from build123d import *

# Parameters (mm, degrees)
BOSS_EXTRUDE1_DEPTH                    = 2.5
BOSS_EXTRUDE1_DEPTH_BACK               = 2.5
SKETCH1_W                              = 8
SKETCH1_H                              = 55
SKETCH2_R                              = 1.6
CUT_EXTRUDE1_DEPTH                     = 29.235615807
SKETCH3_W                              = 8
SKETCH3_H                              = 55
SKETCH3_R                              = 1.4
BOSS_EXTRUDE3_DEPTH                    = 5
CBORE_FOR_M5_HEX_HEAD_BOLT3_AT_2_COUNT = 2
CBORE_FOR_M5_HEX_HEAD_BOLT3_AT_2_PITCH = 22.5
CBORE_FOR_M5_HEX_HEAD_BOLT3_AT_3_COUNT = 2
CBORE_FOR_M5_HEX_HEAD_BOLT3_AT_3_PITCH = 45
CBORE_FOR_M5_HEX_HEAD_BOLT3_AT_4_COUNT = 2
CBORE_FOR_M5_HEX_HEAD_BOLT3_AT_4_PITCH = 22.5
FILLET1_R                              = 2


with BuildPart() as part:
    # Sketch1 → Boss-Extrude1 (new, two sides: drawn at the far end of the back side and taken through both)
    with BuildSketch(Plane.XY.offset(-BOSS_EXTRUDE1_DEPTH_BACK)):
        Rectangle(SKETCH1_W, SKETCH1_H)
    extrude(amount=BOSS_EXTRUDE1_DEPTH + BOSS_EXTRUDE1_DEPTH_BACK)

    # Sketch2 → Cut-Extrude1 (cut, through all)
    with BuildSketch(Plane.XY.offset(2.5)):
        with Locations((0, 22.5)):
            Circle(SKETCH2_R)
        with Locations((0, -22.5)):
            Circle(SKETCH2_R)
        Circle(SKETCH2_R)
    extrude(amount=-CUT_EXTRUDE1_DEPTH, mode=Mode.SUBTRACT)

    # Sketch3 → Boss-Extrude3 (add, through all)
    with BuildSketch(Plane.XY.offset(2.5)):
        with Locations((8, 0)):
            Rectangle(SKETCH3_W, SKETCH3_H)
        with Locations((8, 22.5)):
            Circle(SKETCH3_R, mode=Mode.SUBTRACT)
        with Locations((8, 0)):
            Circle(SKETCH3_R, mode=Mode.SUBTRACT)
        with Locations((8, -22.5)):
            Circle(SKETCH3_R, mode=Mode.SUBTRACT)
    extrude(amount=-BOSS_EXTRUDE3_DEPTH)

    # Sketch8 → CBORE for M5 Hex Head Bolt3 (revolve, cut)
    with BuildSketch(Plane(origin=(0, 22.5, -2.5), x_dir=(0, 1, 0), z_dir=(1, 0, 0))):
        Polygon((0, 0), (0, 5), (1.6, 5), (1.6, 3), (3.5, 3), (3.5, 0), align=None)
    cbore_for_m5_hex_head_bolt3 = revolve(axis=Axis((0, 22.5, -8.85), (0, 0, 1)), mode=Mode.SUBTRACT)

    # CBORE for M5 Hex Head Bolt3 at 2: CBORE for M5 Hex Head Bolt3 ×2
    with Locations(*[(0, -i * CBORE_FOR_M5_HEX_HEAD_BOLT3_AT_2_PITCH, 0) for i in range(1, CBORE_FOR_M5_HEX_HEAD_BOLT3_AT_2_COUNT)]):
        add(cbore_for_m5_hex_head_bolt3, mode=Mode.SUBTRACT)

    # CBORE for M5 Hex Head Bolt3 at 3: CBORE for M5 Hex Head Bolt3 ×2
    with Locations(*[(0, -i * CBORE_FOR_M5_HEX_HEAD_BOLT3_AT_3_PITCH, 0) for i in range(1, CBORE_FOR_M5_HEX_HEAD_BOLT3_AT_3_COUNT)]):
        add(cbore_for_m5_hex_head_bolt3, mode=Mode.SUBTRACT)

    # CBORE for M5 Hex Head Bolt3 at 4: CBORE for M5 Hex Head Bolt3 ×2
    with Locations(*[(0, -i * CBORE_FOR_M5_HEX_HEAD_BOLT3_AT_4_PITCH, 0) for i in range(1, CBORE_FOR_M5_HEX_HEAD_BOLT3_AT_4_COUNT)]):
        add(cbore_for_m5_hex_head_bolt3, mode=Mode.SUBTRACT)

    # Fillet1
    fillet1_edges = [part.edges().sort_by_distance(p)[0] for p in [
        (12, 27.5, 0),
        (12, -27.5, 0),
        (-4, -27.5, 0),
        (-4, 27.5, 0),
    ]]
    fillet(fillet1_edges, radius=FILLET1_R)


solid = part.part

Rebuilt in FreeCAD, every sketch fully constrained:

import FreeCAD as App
import Part
import Sketcher
from FreeCAD import Vector


def edges_at(feature, points):
    """Names of the edges that pass closest to the given points."""
    edges = feature.Shape.Edges
    near = lambda p: min(range(len(edges)), key=lambda i: edges[i].distToShape(Part.Vertex(*p))[0])
    return sorted({f"Edge{near(p) + 1}" for p in points})

doc = App.newDocument("Part")
params = doc.addObject("Spreadsheet::Sheet", "Params")
for row, (alias, value) in enumerate([
    ("sketch1_width", "8 mm"),
    ("sketch1_height", "55 mm"),
    ("pad1_length", "2.5 mm"),
    ("pad1_length2", "2.5 mm"),
    ("sketch2_diameter", "3.2 mm"),
    ("sketch3_diameter", "2.8 mm"),
    ("sketch3_width", "8 mm"),
    ("sketch3_height", "55 mm"),
    ("pad2_length", "5 mm"),
    ("sketch4_height", "5 mm"),
    ("sketch4_height2", "3 mm"),
    ("sketch4_width", "3.5 mm"),
    ("sketch4_width2", "1.9 mm"),
    ("groove_angle", "360 deg"),
    ("linearpattern_pitch", "22.5 mm"),
    ("linearpattern2_pitch", "45 mm"),
    ("linearpattern3_pitch", "22.5 mm"),
    ("fillet_radius", "2 mm"),
], start=1):
    params.set(f"A{row}", alias)
    params.set(f"B{row}", "=" + value)
    params.setAlias(f"B{row}", alias)

body = doc.addObject("PartDesign::Body", "Body")

sketch1 = body.newObject("Sketcher::SketchObject", "Sketch")
sketch1.AttachmentSupport = (doc.getObject("XY_Plane"), [""])
sketch1.MapMode = "FlatFace"
sketch1.addGeometry(Part.LineSegment(Vector(-4, 27.5, 0), Vector(-4, -27.5, 0)), False)
sketch1.addGeometry(Part.LineSegment(Vector(-4, -27.5, 0), Vector(4, -27.5, 0)), False)
sketch1.addGeometry(Part.LineSegment(Vector(4, -27.5, 0), Vector(4, 27.5, 0)), False)
sketch1.addGeometry(Part.LineSegment(Vector(4, 27.5, 0), Vector(-4, 27.5, 0)), False)
sketch1.addConstraint(Sketcher.Constraint("Coincident", 0, 2, 1, 1))
sketch1.addConstraint(Sketcher.Constraint("Coincident", 1, 2, 2, 1))
sketch1.addConstraint(Sketcher.Constraint("Coincident", 2, 2, 3, 1))
sketch1.addConstraint(Sketcher.Constraint("Coincident", 3, 2, 0, 1))
sketch1.addConstraint(Sketcher.Constraint("Vertical", 0))
sketch1.addConstraint(Sketcher.Constraint("Horizontal", 1))
sketch1.addConstraint(Sketcher.Constraint("Vertical", 2))
sketch1.addConstraint(Sketcher.Constraint("Horizontal", 3))
sketch1.addConstraint(Sketcher.Constraint("Symmetric", 0, 2, 2, 2, -1, 1))
sketch1.addConstraint(Sketcher.Constraint("DistanceX", 1, 1, 1, 2, 8.0))
sketch1.addConstraint(Sketcher.Constraint("DistanceY", 0, 2, 0, 1, 55.0))
sketch1.setExpression("Constraints[9]", "Params.sketch1_width")
sketch1.setExpression("Constraints[10]", "Params.sketch1_height")
pad1 = body.newObject("PartDesign::Pad", "Pad")
pad1.Profile = sketch1
pad1.Type = "TwoLengths"
pad1.setExpression("Length", "Params.pad1_length")
pad1.setExpression("Length2", "Params.pad1_length2")

sketch2 = body.newObject("Sketcher::SketchObject", "Sketch001")
sketch2.AttachmentSupport = (doc.getObject("XY_Plane"), [""])
sketch2.MapMode = "FlatFace"
sketch2.AttachmentOffset = App.Placement(Vector(0, 0, 2.5), App.Rotation())
sketch2.addGeometry(Part.Circle(Vector(0, 22.5, 0), Vector(0, 0, 1), 1.6), False)
sketch2.addGeometry(Part.Circle(Vector(0, -22.5, 0), Vector(0, 0, 1), 1.6), False)
sketch2.addGeometry(Part.Circle(Vector(0, 0, 0), Vector(0, 0, 1), 1.6), False)
sketch2.addConstraint(Sketcher.Constraint("Coincident", 2, 3, -1, 1))
sketch2.addConstraint(Sketcher.Constraint("Equal", 0, 1))
sketch2.addConstraint(Sketcher.Constraint("Equal", 1, 2))
sketch2.addConstraint(Sketcher.Constraint("Symmetric", 0, 3, 1, 3, -1, 1))
sketch2.addConstraint(Sketcher.Constraint("PointOnObject", 0, 3, -2))
sketch2.addConstraint(Sketcher.Constraint("Diameter", 0, 3.2))
sketch2.addConstraint(Sketcher.Constraint("DistanceY", 1, 3, 0, 3, 45.0))
sketch2.setExpression("Constraints[5]", "Params.sketch2_diameter")
pocket1 = body.newObject("PartDesign::Pocket", "Pocket")
pocket1.Profile = sketch2
pocket1.Type = "ThroughAll"

sketch3 = body.newObject("Sketcher::SketchObject", "Sketch002")
sketch3.AttachmentSupport = (doc.getObject("XY_Plane"), [""])
sketch3.MapMode = "FlatFace"
sketch3.AttachmentOffset = App.Placement(Vector(0, 0, 2.5), App.Rotation())
sketch3.addGeometry(Part.LineSegment(Vector(4, 27.5, 0), Vector(4, -27.5, 0)), False)
sketch3.addGeometry(Part.LineSegment(Vector(4, -27.5, 0), Vector(12, -27.5, 0)), False)
sketch3.addGeometry(Part.LineSegment(Vector(12, -27.5, 0), Vector(12, 27.5, 0)), False)
sketch3.addGeometry(Part.LineSegment(Vector(12, 27.5, 0), Vector(4, 27.5, 0)), False)
sketch3.addGeometry(Part.Circle(Vector(8, -22.5, 0), Vector(0, 0, 1), 1.4), False)
sketch3.addGeometry(Part.Circle(Vector(8, 0, 0), Vector(0, 0, 1), 1.4), False)
sketch3.addGeometry(Part.Circle(Vector(8, 22.5, 0), Vector(0, 0, 1), 1.4), False)
sketch3.addConstraint(Sketcher.Constraint("Coincident", 0, 2, 1, 1))
sketch3.addConstraint(Sketcher.Constraint("Coincident", 1, 2, 2, 1))
sketch3.addConstraint(Sketcher.Constraint("Coincident", 2, 2, 3, 1))
sketch3.addConstraint(Sketcher.Constraint("Coincident", 3, 2, 0, 1))
sketch3.addConstraint(Sketcher.Constraint("Vertical", 0))
sketch3.addConstraint(Sketcher.Constraint("Horizontal", 1))
sketch3.addConstraint(Sketcher.Constraint("Vertical", 2))
sketch3.addConstraint(Sketcher.Constraint("Horizontal", 3))
sketch3.addConstraint(Sketcher.Constraint("Equal", 4, 5))
sketch3.addConstraint(Sketcher.Constraint("Equal", 5, 6))
sketch3.addConstraint(Sketcher.Constraint("Symmetric", 4, 3, 6, 3, -1))
sketch3.addConstraint(Sketcher.Constraint("PointOnObject", 5, 3, -1))
sketch3.addConstraint(Sketcher.Constraint("Vertical", 4, 3, 5, 3))
sketch3.addConstraint(Sketcher.Constraint("Diameter", 4, 2.8))
sketch3.addConstraint(Sketcher.Constraint("DistanceX", 1, 1, 1, 2, 8.0))
sketch3.addConstraint(Sketcher.Constraint("DistanceY", 0, 2, 0, 1, 55.0))
sketch3.addConstraint(Sketcher.Constraint("DistanceX", -1, 1, 4, 3, 8.0))
sketch3.addConstraint(Sketcher.Constraint("DistanceX", -1, 1, 0, 2, 4.0))
sketch3.addConstraint(Sketcher.Constraint("DistanceY", 4, 3, 6, 3, 45.0))
sketch3.addConstraint(Sketcher.Constraint("DistanceY", 0, 2, 4, 3, 5.0))
sketch3.setExpression("Constraints[13]", "Params.sketch3_diameter")
sketch3.setExpression("Constraints[14]", "Params.sketch3_width")
sketch3.setExpression("Constraints[15]", "Params.sketch3_height")
pad2 = body.newObject("PartDesign::Pad", "Pad001")
pad2.Profile = sketch3
pad2.setExpression("Length", "Params.pad2_length")
pad2.Reversed = True

sketch4 = body.newObject("Sketcher::SketchObject", "Sketch003")
sketch4.AttachmentSupport = (doc.getObject("YZ_Plane"), [""])
sketch4.MapMode = "FlatFace"
sketch4.addGeometry(Part.LineSegment(Vector(22.5, 2.5, 0), Vector(22.5, -2.5, 0)), False)
sketch4.addGeometry(Part.LineSegment(Vector(22.5, -2.5, 0), Vector(26, -2.5, 0)), False)
sketch4.addGeometry(Part.LineSegment(Vector(26, -2.5, 0), Vector(26, 0.5, 0)), False)
sketch4.addGeometry(Part.LineSegment(Vector(26, 0.5, 0), Vector(24.1, 0.5, 0)), False)
sketch4.addGeometry(Part.LineSegment(Vector(24.1, 0.5, 0), Vector(24.1, 2.5, 0)), False)
sketch4.addGeometry(Part.LineSegment(Vector(24.1, 2.5, 0), Vector(22.5, 2.5, 0)), False)
sketch4.addGeometry(Part.LineSegment(Vector(22.5, -2.5, 0), Vector(22.5, 2.5, 0)), True)
sketch4.addConstraint(Sketcher.Constraint("Coincident", 0, 2, 1, 1))
sketch4.addConstraint(Sketcher.Constraint("Coincident", 1, 2, 2, 1))
sketch4.addConstraint(Sketcher.Constraint("Coincident", 2, 2, 3, 1))
sketch4.addConstraint(Sketcher.Constraint("Coincident", 3, 2, 4, 1))
sketch4.addConstraint(Sketcher.Constraint("Coincident", 4, 2, 5, 1))
sketch4.addConstraint(Sketcher.Constraint("Coincident", 5, 2, 0, 1))
sketch4.addConstraint(Sketcher.Constraint("Vertical", 0))
sketch4.addConstraint(Sketcher.Constraint("Horizontal", 1))
sketch4.addConstraint(Sketcher.Constraint("Vertical", 2))
sketch4.addConstraint(Sketcher.Constraint("Horizontal", 3))
sketch4.addConstraint(Sketcher.Constraint("Vertical", 4))
sketch4.addConstraint(Sketcher.Constraint("Horizontal", 5))
sketch4.addConstraint(Sketcher.Constraint("Vertical", 6))
sketch4.addConstraint(Sketcher.Constraint("Coincident", 6, 1, 0, 2))
sketch4.addConstraint(Sketcher.Constraint("Horizontal", 4, 2, 6, 2))
sketch4.addConstraint(Sketcher.Constraint("DistanceY", 0, 2, 0, 1, 5.0))
sketch4.addConstraint(Sketcher.Constraint("DistanceY", 2, 1, 2, 2, 3.0))
sketch4.addConstraint(Sketcher.Constraint("DistanceX", 1, 1, 1, 2, 3.5))
sketch4.addConstraint(Sketcher.Constraint("DistanceX", 3, 2, 3, 1, 1.9))
sketch4.addConstraint(Sketcher.Constraint("DistanceX", -1, 1, 1, 2, 26.0))
sketch4.addConstraint(Sketcher.Constraint("DistanceY", 0, 2, -1, 1, 2.5))
sketch4.setExpression("Constraints[15]", "Params.sketch4_height")
sketch4.setExpression("Constraints[16]", "Params.sketch4_height2")
sketch4.setExpression("Constraints[17]", "Params.sketch4_width")
sketch4.setExpression("Constraints[18]", "Params.sketch4_width2")
groove = body.newObject("PartDesign::Groove", "Groove")
groove.Profile = sketch4
groove.ReferenceAxis = (sketch4, ["Axis0"])
groove.setExpression("Angle", "Params.groove_angle")
doc.recompute()

linearpattern = body.newObject("PartDesign::LinearPattern", "LinearPattern")
linearpattern.Originals = [groove]
linearpattern.Direction = (doc.getObject("Y_Axis"), [""])
linearpattern.Mode = "offset"
linearpattern.setExpression("Offset", "Params.linearpattern_pitch")
linearpattern.Occurrences = 2
linearpattern.Reversed = True
body.Tip = linearpattern
doc.recompute()

linearpattern2 = body.newObject("PartDesign::LinearPattern", "LinearPattern001")
linearpattern2.Originals = [groove]
linearpattern2.Direction = (doc.getObject("Y_Axis"), [""])
linearpattern2.Mode = "offset"
linearpattern2.setExpression("Offset", "Params.linearpattern2_pitch")
linearpattern2.Occurrences = 2
linearpattern2.Reversed = True
body.Tip = linearpattern2
doc.recompute()

linearpattern3 = body.newObject("PartDesign::LinearPattern", "LinearPattern002")
linearpattern3.Originals = [groove]
linearpattern3.Direction = (doc.getObject("Y_Axis"), [""])
linearpattern3.Mode = "offset"
linearpattern3.setExpression("Offset", "Params.linearpattern3_pitch")
linearpattern3.Occurrences = 2
linearpattern3.Reversed = True
body.Tip = linearpattern3
doc.recompute()

fillet = body.newObject("PartDesign::Fillet", "Fillet")
fillet.Base = (linearpattern3, edges_at(linearpattern3, [
    (12, 27.5, 0),
    (12, -27.5, 0),
    (-4, -27.5, 0),
    (-4, 27.5, 0),
]))
fillet.setExpression("Radius", "Params.fillet_radius")

doc.recompute()
